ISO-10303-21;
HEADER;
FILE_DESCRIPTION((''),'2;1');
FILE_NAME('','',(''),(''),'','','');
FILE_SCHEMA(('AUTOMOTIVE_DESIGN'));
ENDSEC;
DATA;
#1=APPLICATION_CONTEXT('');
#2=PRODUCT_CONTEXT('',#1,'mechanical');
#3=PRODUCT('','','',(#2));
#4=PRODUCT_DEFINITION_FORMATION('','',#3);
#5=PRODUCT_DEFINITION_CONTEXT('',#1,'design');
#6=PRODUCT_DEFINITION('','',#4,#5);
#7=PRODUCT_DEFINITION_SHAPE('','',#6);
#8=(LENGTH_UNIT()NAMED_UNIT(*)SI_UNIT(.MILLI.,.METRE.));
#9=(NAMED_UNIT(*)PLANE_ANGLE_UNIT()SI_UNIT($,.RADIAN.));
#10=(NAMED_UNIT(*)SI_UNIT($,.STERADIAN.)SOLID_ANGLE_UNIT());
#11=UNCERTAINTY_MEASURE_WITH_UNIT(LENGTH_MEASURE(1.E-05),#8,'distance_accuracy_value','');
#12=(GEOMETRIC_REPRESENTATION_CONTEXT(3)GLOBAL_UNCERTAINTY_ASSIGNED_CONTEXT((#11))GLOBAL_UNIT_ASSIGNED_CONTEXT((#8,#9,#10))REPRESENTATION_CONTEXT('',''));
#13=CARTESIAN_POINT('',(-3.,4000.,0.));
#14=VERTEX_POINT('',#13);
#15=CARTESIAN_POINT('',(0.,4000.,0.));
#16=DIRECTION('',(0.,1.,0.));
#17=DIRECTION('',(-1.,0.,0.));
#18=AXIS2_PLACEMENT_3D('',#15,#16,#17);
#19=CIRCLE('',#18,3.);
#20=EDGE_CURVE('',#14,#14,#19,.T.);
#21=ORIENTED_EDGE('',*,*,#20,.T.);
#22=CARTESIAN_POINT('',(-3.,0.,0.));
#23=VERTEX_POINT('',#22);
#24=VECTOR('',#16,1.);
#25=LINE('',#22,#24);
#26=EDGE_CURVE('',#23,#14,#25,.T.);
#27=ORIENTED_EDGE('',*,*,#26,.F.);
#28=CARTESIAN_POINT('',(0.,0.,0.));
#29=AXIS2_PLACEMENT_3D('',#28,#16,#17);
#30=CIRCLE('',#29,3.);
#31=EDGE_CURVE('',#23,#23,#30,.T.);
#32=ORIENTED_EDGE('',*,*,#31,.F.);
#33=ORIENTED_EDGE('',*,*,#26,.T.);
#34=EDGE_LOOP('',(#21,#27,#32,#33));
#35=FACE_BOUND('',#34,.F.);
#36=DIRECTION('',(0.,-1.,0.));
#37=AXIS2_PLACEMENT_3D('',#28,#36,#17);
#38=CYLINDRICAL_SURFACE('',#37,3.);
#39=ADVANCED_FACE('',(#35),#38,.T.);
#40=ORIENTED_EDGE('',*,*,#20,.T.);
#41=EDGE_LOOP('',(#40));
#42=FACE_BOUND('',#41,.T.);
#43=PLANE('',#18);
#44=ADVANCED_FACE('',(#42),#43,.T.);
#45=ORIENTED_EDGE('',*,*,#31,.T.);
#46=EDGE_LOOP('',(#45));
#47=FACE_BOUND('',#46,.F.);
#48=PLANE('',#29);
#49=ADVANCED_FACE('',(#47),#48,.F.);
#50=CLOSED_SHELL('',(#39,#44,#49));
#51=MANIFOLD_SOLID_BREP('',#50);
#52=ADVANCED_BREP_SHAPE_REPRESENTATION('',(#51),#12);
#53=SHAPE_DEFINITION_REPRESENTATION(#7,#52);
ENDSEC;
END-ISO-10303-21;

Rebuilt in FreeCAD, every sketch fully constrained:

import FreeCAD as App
import Part
import Sketcher
from FreeCAD import Vector

doc = App.newDocument("Part")
params = doc.addObject("Spreadsheet::Sheet", "Params")
for row, (alias, value) in enumerate([
    ("sketch1_diameter", "6 mm"),
    ("pad1_length", "4000 mm"),
], start=1):
    params.set(f"A{row}", alias)
    params.set(f"B{row}", "=" + value)
    params.setAlias(f"B{row}", alias)

body = doc.addObject("PartDesign::Body", "Body")

# Sketch on XZ plane
sketch1 = body.newObject("Sketcher::SketchObject", "Sketch")
sketch1.AttachmentSupport = (doc.getObject("XZ_Plane"), [""])
sketch1.MapMode = "FlatFace"
sketch1.addGeometry(Part.Circle(Vector(0, 0, 0), Vector(0, 0, 1), 3), False)
sketch1.addConstraint(Sketcher.Constraint("Coincident", 0, 3, -1, 1))
sketch1.addConstraint(Sketcher.Constraint("Diameter", 0, 6.0))
sketch1.setExpression("Constraints[1]", "Params.sketch1_diameter")
pad1 = body.newObject("PartDesign::Pad", "Pad")
pad1.Profile = sketch1
pad1.setExpression("Length", "Params.pad1_length")
pad1.Reversed = True

doc.recompute()
